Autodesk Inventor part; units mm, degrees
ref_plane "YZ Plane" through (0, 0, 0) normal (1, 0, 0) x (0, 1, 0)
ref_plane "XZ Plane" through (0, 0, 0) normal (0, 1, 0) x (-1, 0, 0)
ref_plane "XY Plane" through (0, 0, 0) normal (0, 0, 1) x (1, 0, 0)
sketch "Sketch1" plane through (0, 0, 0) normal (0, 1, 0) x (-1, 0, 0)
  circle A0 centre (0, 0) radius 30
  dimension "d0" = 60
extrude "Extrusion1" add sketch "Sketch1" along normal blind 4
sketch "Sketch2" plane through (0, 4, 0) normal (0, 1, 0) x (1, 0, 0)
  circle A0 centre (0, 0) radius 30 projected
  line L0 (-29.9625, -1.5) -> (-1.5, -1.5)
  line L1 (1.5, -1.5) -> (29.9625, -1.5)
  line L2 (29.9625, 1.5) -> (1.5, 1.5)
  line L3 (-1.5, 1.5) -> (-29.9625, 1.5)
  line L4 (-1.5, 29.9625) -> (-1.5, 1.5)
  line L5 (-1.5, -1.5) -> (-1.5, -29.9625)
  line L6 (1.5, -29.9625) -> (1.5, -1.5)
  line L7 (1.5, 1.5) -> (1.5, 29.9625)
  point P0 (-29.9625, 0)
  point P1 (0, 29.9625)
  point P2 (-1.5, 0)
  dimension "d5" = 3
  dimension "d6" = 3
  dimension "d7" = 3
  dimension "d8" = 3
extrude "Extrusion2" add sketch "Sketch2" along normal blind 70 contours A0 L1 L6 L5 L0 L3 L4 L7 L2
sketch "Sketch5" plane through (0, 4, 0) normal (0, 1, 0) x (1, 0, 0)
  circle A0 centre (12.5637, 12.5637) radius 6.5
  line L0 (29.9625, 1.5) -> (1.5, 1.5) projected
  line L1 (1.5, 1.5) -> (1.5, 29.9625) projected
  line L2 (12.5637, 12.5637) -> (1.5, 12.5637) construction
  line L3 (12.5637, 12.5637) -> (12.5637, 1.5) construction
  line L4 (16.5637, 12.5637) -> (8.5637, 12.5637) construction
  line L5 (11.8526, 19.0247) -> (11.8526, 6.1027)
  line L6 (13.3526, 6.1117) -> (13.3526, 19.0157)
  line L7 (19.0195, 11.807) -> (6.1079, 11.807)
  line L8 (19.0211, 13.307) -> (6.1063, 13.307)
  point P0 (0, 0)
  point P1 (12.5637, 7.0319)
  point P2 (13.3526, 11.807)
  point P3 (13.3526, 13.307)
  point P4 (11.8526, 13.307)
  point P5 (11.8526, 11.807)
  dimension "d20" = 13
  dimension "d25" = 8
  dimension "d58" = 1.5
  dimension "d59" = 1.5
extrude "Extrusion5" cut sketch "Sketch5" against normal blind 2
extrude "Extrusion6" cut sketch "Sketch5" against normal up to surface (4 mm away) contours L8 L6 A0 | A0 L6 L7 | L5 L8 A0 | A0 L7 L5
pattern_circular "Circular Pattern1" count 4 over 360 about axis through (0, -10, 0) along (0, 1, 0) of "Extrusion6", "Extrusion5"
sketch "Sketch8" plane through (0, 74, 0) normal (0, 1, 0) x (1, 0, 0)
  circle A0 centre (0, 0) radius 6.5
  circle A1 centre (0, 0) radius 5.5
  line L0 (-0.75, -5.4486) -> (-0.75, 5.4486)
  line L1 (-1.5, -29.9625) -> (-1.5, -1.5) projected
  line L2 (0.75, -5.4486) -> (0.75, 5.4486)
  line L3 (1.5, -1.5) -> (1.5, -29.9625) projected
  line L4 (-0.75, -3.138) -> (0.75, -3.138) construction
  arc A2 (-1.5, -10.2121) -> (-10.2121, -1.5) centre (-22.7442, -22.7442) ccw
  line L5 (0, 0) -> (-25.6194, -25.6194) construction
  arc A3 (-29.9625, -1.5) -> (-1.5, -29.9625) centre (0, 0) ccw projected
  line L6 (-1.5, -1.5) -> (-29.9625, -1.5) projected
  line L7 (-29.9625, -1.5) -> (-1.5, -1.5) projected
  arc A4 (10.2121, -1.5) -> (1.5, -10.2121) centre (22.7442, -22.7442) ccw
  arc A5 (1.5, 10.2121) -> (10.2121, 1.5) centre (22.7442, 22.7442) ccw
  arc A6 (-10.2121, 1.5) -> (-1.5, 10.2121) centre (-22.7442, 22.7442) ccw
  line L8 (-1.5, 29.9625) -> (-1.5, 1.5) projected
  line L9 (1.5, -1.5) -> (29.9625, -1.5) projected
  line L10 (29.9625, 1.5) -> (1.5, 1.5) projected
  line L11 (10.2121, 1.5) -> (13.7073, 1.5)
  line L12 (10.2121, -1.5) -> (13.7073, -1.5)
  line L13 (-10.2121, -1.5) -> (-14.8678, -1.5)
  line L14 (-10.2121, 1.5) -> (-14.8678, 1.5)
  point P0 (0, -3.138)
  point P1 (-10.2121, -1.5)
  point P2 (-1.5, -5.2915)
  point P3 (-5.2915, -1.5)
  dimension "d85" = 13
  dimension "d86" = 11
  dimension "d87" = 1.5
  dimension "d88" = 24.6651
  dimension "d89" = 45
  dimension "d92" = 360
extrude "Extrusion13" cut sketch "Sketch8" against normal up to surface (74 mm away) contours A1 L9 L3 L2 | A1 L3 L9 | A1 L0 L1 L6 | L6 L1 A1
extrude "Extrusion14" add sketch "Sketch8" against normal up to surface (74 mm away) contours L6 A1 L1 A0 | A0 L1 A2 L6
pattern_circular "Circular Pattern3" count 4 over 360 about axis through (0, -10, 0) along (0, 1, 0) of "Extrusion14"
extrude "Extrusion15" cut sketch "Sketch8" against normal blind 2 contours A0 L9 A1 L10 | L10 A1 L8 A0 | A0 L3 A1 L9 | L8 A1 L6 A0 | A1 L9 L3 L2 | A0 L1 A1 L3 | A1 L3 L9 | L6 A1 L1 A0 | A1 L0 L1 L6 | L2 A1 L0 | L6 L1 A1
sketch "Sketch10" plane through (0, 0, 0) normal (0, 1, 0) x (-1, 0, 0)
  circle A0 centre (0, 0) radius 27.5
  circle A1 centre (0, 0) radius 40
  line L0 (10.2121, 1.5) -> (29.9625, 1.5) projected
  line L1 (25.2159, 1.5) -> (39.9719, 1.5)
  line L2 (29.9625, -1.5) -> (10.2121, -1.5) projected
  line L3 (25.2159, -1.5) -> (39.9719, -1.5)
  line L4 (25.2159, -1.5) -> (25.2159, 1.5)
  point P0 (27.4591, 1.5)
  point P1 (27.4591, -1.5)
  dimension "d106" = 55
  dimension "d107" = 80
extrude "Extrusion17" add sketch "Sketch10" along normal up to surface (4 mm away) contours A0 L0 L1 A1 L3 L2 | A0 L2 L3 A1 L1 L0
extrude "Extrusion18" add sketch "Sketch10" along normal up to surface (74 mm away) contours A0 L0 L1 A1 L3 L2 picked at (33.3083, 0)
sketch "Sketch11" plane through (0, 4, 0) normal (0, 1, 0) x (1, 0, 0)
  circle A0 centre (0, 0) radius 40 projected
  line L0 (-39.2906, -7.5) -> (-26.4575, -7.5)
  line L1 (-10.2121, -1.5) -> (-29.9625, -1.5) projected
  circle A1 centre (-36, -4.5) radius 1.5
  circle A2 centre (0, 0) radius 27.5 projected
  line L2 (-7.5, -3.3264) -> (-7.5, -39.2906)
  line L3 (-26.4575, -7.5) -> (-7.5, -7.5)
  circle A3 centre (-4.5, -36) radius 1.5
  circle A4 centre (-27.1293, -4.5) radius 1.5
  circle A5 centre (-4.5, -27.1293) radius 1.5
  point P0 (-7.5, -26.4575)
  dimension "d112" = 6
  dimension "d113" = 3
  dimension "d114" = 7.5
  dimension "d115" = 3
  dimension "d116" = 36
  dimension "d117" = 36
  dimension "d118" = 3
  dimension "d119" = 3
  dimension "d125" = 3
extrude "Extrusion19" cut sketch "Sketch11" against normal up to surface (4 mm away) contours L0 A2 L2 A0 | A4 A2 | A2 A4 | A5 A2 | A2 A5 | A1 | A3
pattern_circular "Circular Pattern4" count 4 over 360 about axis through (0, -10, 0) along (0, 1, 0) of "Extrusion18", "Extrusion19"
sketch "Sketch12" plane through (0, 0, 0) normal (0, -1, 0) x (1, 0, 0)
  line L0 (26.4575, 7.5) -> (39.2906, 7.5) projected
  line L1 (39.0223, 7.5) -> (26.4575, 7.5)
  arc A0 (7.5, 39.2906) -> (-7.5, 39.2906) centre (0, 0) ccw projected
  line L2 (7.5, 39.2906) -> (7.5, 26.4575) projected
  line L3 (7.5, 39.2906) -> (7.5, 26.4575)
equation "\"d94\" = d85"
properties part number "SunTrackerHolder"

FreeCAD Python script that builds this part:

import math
import FreeCAD as App
import Part
import Sketcher
from FreeCAD import Vector

doc = App.newDocument("Part")
body = doc.addObject("PartDesign::Body", "Body")

sketch1 = body.newObject("Sketcher::SketchObject", "Sketch")
sketch1.AttachmentSupport = (doc.getObject("XZ_Plane"), [""])
sketch1.MapMode = "FlatFace"
sketch1.addGeometry(Part.Circle(Vector(0, 0, 0), Vector(0, 0, 1), 30), False)
sketch1.addConstraint([
    Sketcher.Constraint("Coincident", 0, 3, -1, 1),
    Sketcher.Constraint("Diameter", 0, 60.0),
])
pad1 = body.newObject("PartDesign::Pad", "Pad")
pad1.Profile = sketch1
pad1.Length = 4
pad1.Reversed = True

sketch2 = body.newObject("Sketcher::SketchObject", "Sketch001")
sketch2.AttachmentSupport = (doc.getObject("XZ_Plane"), [""])
sketch2.MapMode = "FlatFace"
sketch2.AttachmentOffset = App.Placement(Vector(0, 0, -4), App.Rotation())
sketch2.addGeometry([
    Part.ArcOfCircle(Part.Circle(Vector(0, 0, 0), Vector(0, 0, 1), 30), math.radians(-2.865982), math.radians(2.865982)),
    Part.LineSegment(Vector(29.9625, -1.5, 0), Vector(1.5, -1.5, 0)),
    Part.LineSegment(Vector(1.5, -1.5, 0), Vector(1.5, -29.9625, 0)),
    Part.ArcOfCircle(Part.Circle(Vector(0, 0, 0), Vector(0, 0, 1), 30), math.radians(-92.865982), math.radians(-87.134018)),
    Part.LineSegment(Vector(-1.5, -29.9625, 0), Vector(-1.5, -1.5, 0)),
    Part.LineSegment(Vector(-1.5, -1.5, 0), Vector(-29.9625, -1.5, 0)),
    Part.ArcOfCircle(Part.Circle(Vector(0, 0, 0), Vector(0, 0, 1), 30), math.radians(177.134018), math.radians(182.865982)),
    Part.LineSegment(Vector(-29.9625, 1.5, 0), Vector(-1.5, 1.5, 0)),
    Part.LineSegment(Vector(-1.5, 1.5, 0), Vector(-1.5, 29.9625, 0)),
    Part.ArcOfCircle(Part.Circle(Vector(0, 0, 0), Vector(0, 0, 1), 30), math.radians(87.134018), math.radians(92.865982)),
    Part.LineSegment(Vector(1.5, 29.9625, 0), Vector(1.5, 1.5, 0)),
    Part.LineSegment(Vector(1.5, 1.5, 0), Vector(29.9625, 1.5, 0)),
], False)
sketch2.addConstraint([
    Sketcher.Constraint("Coincident", 0, 1, 1, 1),
    Sketcher.Constraint("Coincident", 1, 2, 2, 1),
    Sketcher.Constraint("Coincident", 2, 2, 3, 2),
    Sketcher.Constraint("Coincident", 3, 1, 4, 1),
    Sketcher.Constraint("Coincident", 4, 2, 5, 1),
    Sketcher.Constraint("Coincident", 5, 2, 6, 2),
    Sketcher.Constraint("Coincident", 6, 1, 7, 1),
    Sketcher.Constraint("Coincident", 7, 2, 8, 1),
    Sketcher.Constraint("Coincident", 8, 2, 9, 2),
    Sketcher.Constraint("Coincident", 9, 1, 10, 1),
    Sketcher.Constraint("Coincident", 10, 2, 11, 1),
    Sketcher.Constraint("Coincident", 11, 2, 0, 2),
    Sketcher.Constraint("Horizontal", 1),
    Sketcher.Constraint("Vertical", 2),
    Sketcher.Constraint("Vertical", 4),
    Sketcher.Constraint("Horizontal", 5),
    Sketcher.Constraint("Horizontal", 7),
    Sketcher.Constraint("Vertical", 8),
    Sketcher.Constraint("Vertical", 10),
    Sketcher.Constraint("Horizontal", 11),
    Sketcher.Constraint("Coincident", 0, 3, -1, 1),
    Sketcher.Constraint("Coincident", 3, 3, -1, 1),
    Sketcher.Constraint("Coincident", 6, 3, -1, 1),
    Sketcher.Constraint("Coincident", 9, 3, -1, 1),
    Sketcher.Constraint("Equal", 0, 3),
    Sketcher.Constraint("Equal", 3, 6),
    Sketcher.Constraint("Equal", 6, 9),
    Sketcher.Constraint("Symmetric", 1, 2, 7, 2, -1, 1),
    Sketcher.Constraint("Symmetric", 4, 2, 10, 2, -1, 1),
    Sketcher.Constraint("Symmetric", 1, 2, 4, 2, -2),
    Sketcher.Constraint("Equal", 11, 2),
    Sketcher.Constraint("Radius", 0, 30.0),
    Sketcher.Constraint("DistanceX", 3, 1, 2, 2, 3.0),
])
pad2 = body.newObject("PartDesign::Pad", "Pad001")
pad2.Profile = sketch2
pad2.Length = 70
pad2.Reversed = True

sketch3 = body.newObject("Sketcher::SketchObject", "Sketch002")
sketch3.AttachmentSupport = (doc.getObject("XZ_Plane"), [""])
sketch3.MapMode = "FlatFace"
sketch3.AttachmentOffset = App.Placement(Vector(0, 0, -4), App.Rotation())
sketch3.addGeometry(Part.Circle(Vector(12.5637, -12.5637, 0), Vector(0, 0, 1), 6.5), False)
sketch3.addConstraint([
    Sketcher.Constraint("Diameter", 0, 13.0),
    Sketcher.Constraint("DistanceX", -1, 1, 0, 3, 12.5637),
    Sketcher.Constraint("DistanceY", 0, 3, -1, 1, 12.5637),
])
pocket1 = body.newObject("PartDesign::Pocket", "Pocket")
pocket1.Profile = sketch3
pocket1.Length = 2
pocket1.Reversed = True

sketch4 = body.newObject("Sketcher::SketchObject", "Sketch003")
sketch4.AttachmentSupport = (doc.getObject("XZ_Plane"), [""])
sketch4.MapMode = "FlatFace"
sketch4.AttachmentOffset = App.Placement(Vector(0, 0, -4), App.Rotation())
sketch4.addGeometry([
    Part.LineSegment(Vector(13.3526, -13.307, 0), Vector(19.0211, -13.307, 0)),
    Part.ArcOfCircle(Part.Circle(Vector(12.5637, -12.5637, 0), Vector(0, 0, 1), 6.5), math.radians(-83.028924), math.radians(-6.566318)),
    Part.LineSegment(Vector(13.3526, -19.0157, 0), Vector(13.3526, -13.307, 0)),
    Part.ArcOfCircle(Part.Circle(Vector(12.5637, -12.5637, 0), Vector(0, 0, 1), 6.5), math.radians(6.685273), math.radians(83.028924)),
    Part.LineSegment(Vector(19.0195, -11.807, 0), Vector(13.3526, -11.807, 0)),
    Part.LineSegment(Vector(13.3526, -11.807, 0), Vector(13.3526, -6.1117, 0)),
    Part.LineSegment(Vector(11.8526, -13.307, 0), Vector(11.8526, -19.0247, 0)),
    Part.ArcOfCircle(Part.Circle(Vector(12.5637, -12.5637, 0), Vector(0, 0, 1), 6.5), math.radians(-173.433682), math.radians(-96.280716)),
    Part.LineSegment(Vector(6.1063, -13.307, 0), Vector(11.8526, -13.307, 0)),
    Part.ArcOfCircle(Part.Circle(Vector(12.5637, -12.5637, 0), Vector(0, 0, 1), 6.5), math.radians(96.280716), math.radians(173.314727)),
    Part.LineSegment(Vector(11.8526, -6.1027, 0), Vector(11.8526, -11.807, 0)),
    Part.LineSegment(Vector(11.8526, -11.807, 0), Vector(6.1079, -11.807, 0)),
], False)
sketch4.addConstraint([
    Sketcher.Constraint("Coincident", 0, 2, 1, 2),
    Sketcher.Constraint("Coincident", 1, 1, 2, 1),
    Sketcher.Constraint("Coincident", 2, 2, 0, 1),
    Sketcher.Constraint("Coincident", 3, 1, 4, 1),
    Sketcher.Constraint("Coincident", 4, 2, 5, 1),
    Sketcher.Constraint("Coincident", 5, 2, 3, 2),
    Sketcher.Constraint("Coincident", 6, 2, 7, 2),
    Sketcher.Constraint("Coincident", 7, 1, 8, 1),
    Sketcher.Constraint("Coincident", 8, 2, 6, 1),
    Sketcher.Constraint("Coincident", 9, 1, 10, 1),
    Sketcher.Constraint("Coincident", 10, 2, 11, 1),
    Sketcher.Constraint("Coincident", 11, 2, 9, 2),
    Sketcher.Constraint("Horizontal", 0),
    Sketcher.Constraint("Vertical", 2),
    Sketcher.Constraint("Horizontal", 4),
    Sketcher.Constraint("Vertical", 5),
    Sketcher.Constraint("Vertical", 6),
    Sketcher.Constraint("Horizontal", 8),
    Sketcher.Constraint("Vertical", 10),
    Sketcher.Constraint("Horizontal", 11),
    Sketcher.Constraint("Coincident", 3, 3, 1, 3),
    Sketcher.Constraint("Coincident", 7, 3, 1, 3),
    Sketcher.Constraint("Coincident", 9, 3, 1, 3),
    Sketcher.Constraint("Equal", 1, 3),
    Sketcher.Constraint("Equal", 3, 7),
    Sketcher.Constraint("Equal", 7, 9),
    Sketcher.Constraint("Horizontal", 2, 2, 7, 1),
    Sketcher.Constraint("Horizontal", 4, 2, 10, 2),
    Sketcher.Constraint("Vertical", 2, 2, 4, 2),
    Sketcher.Constraint("Vertical", 8, 2, 9, 1),
    Sketcher.Constraint("Radius", 1, 6.5),
    Sketcher.Constraint("DistanceY", 0, 2, 3, 1, 1.5),
    Sketcher.Constraint("DistanceX", 6, 2, 1, 1, 1.5),
    Sketcher.Constraint("DistanceX", 4, 2, 4, 1, 5.667),
    Sketcher.Constraint("DistanceX", 0, 1, 0, 2, 5.6685),
    Sketcher.Constraint("DistanceX", -1, 1, 0, 2, 19.021),
    Sketcher.Constraint("DistanceY", 0, 2, -1, 1, 13.307),
])
pocket2 = body.newObject("PartDesign::Pocket", "Pocket001")
pocket2.Profile = sketch4
pocket2.Length = 4
pocket2.Reversed = True
doc.recompute()

polarpattern = body.newObject("PartDesign::PolarPattern", "PolarPattern")
polarpattern.Originals = [pocket2, pocket1]
polarpattern.Axis = (doc.getObject("Y_Axis"), [""])
polarpattern.Angle = 360
polarpattern.Occurrences = 4
body.Tip = polarpattern

sketch5 = body.newObject("Sketcher::SketchObject", "Sketch004")
sketch5.AttachmentSupport = (doc.getObject("XZ_Plane"), [""])
sketch5.MapMode = "FlatFace"
sketch5.AttachmentOffset = App.Placement(Vector(0, 0, -74), App.Rotation())
sketch5.addGeometry([
    Part.LineSegment(Vector(0.75, -5.4486, 0), Vector(0.75, 5.4486, 0)),
    Part.ArcOfCircle(Part.Circle(Vector(0, 0, 0), Vector(0, 0, 1), 5.5), math.radians(-82.162487), math.radians(82.162487)),
    Part.ArcOfCircle(Part.Circle(Vector(0, 0, 0), Vector(0, 0, 1), 5.5), math.radians(97.837513), math.radians(262.162487)),
    Part.LineSegment(Vector(-0.75, -5.4486, 0), Vector(-0.75, 5.4486, 0)),
], False)
sketch5.addConstraint([
    Sketcher.Constraint("Coincident", 0, 1, 1, 1),
    Sketcher.Constraint("Coincident", 1, 2, 0, 2),
    Sketcher.Constraint("Coincident", 2, 1, 3, 2),
    Sketcher.Constraint("Coincident", 3, 1, 2, 2),
    Sketcher.Constraint("Vertical", 0),
    Sketcher.Constraint("Vertical", 3),
    Sketcher.Constraint("Coincident", 1, 3, -1, 1),
    Sketcher.Constraint("Coincident", 2, 3, -1, 1),
    Sketcher.Constraint("Equal", 1, 2),
    Sketcher.Constraint("Horizontal", 1, 2, 2, 1),
    Sketcher.Constraint("Radius", 1, 5.5),
    Sketcher.Constraint("DistanceX", 2, 1, 1, 2, 1.5),
])
pocket3 = body.newObject("PartDesign::Pocket", "Pocket002")
pocket3.Profile = sketch5
pocket3.Length = 74
pocket3.Reversed = True

sketch6 = body.newObject("Sketcher::SketchObject", "Sketch005")
sketch6.AttachmentSupport = (doc.getObject("XZ_Plane"), [""])
sketch6.MapMode = "FlatFace"
sketch6.AttachmentOffset = App.Placement(Vector(0, 0, -74), App.Rotation())
sketch6.addGeometry([
    Part.LineSegment(Vector(-5.291503, 1.5, 0), Vector(-10.2121, 1.5, 0)),
    Part.ArcOfCircle(Part.Circle(Vector(-22.7442, 22.7442, 0), Vector(0, 0, 1), 24.665149), math.radians(-59.463352), math.radians(-30.536648)),
    Part.LineSegment(Vector(-1.5, 10.2121, 0), Vector(-1.5, 5.291503, 0)),
    Part.ArcOfCircle(Part.Circle(Vector(0, 0, 0), Vector(0, 0, 1), 5.5), math.radians(105.82662), math.radians(164.17338)),
], False)
sketch6.addConstraint([
    Sketcher.Constraint("Coincident", 0, 2, 1, 1),
    Sketcher.Constraint("Coincident", 1, 2, 2, 1),
    Sketcher.Constraint("Coincident", 2, 2, 3, 1),
    Sketcher.Constraint("Coincident", 3, 2, 0, 1),
    Sketcher.Constraint("Horizontal", 0),
    Sketcher.Constraint("Vertical", 2),
    Sketcher.Constraint("Coincident", 3, 3, -1, 1),
    Sketcher.Constraint("Equal", 0, 2),
    Sketcher.Constraint("Radius", 3, 5.5),
    Sketcher.Constraint("DistanceY", -1, 1, 0, 2, 1.5),
    Sketcher.Constraint("DistanceX", 1, 2, -1, 1, 1.5),
    Sketcher.Constraint("Radius", 1, 24.6651),
    Sketcher.Constraint("DistanceX", 0, 2, 0, 1, 4.9206),
])
pad3 = body.newObject("PartDesign::Pad", "Pad002")
pad3.Profile = sketch6
pad3.Length = 74
doc.recompute()

polarpattern2 = body.newObject("PartDesign::PolarPattern", "PolarPattern001")
polarpattern2.Originals = [pad3]
polarpattern2.Axis = (doc.getObject("Y_Axis"), [""])
polarpattern2.Angle = 360
polarpattern2.Occurrences = 4
body.Tip = polarpattern2

sketch7 = body.newObject("Sketcher::SketchObject", "Sketch006")
sketch7.AttachmentSupport = (doc.getObject("XZ_Plane"), [""])
sketch7.MapMode = "FlatFace"
sketch7.AttachmentOffset = App.Placement(Vector(0, 0, -74), App.Rotation())
sketch7.addGeometry(Part.Circle(Vector(0, 0, 0), Vector(0, 0, 1), 6.5), False)
sketch7.addConstraint([
    Sketcher.Constraint("Coincident", 0, 3, -1, 1),
    Sketcher.Constraint("Diameter", 0, 13.0),
])
pocket4 = body.newObject("PartDesign::Pocket", "Pocket003")
pocket4.Profile = sketch7
pocket4.Length = 2
pocket4.Reversed = True

sketch8 = body.newObject("Sketcher::SketchObject", "Sketch007")
sketch8.AttachmentSupport = (doc.getObject("XZ_Plane"), [""])
sketch8.MapMode = "FlatFace"
sketch8.addGeometry([
    Part.Circle(Vector(0, 0, 0), Vector(0, 0, 1), 40),
    Part.Circle(Vector(0, 0, 0), Vector(0, 0, 1), 27.5),
], False)
sketch8.addConstraint([
    Sketcher.Constraint("Coincident", 0, 3, -1, 1),
    Sketcher.Constraint("Coincident", 1, 3, -1, 1),
    Sketcher.Constraint("Diameter", 0, 80.0),
    Sketcher.Constraint("Diameter", 1, 55.0),
])
pad4 = body.newObject("PartDesign::Pad", "Pad003")
pad4.Profile = sketch8
pad4.Length = 4
pad4.Reversed = True

sketch9 = body.newObject("Sketcher::SketchObject", "Sketch008")
sketch9.AttachmentSupport = (doc.getObject("XZ_Plane"), [""])
sketch9.MapMode = "FlatFace"
sketch9.addGeometry([
    Part.ArcOfCircle(Part.Circle(Vector(0, 0, 0), Vector(0, 0, 1), 27.5), math.radians(176.873224), math.radians(183.126776)),
    Part.LineSegment(Vector(-27.45906, -1.5, 0), Vector(-39.9719, -1.5, 0)),
    Part.ArcOfCircle(Part.Circle(Vector(0, 0, 0), Vector(0, 0, 1), 40), math.radians(177.850906), math.radians(182.149094)),
    Part.LineSegment(Vector(-39.9719, 1.5, 0), Vector(-27.45906, 1.5, 0)),
], False)
sketch9.addConstraint([
    Sketcher.Constraint("Coincident", 0, 2, 1, 1),
    Sketcher.Constraint("Coincident", 1, 2, 2, 2),
    Sketcher.Constraint("Coincident", 2, 1, 3, 1),
    Sketcher.Constraint("Coincident", 3, 2, 0, 1),
    Sketcher.Constraint("Horizontal", 1),
    Sketcher.Constraint("Horizontal", 3),
    Sketcher.Constraint("Coincident", 0, 3, -1, 1),
    Sketcher.Constraint("Coincident", 2, 3, -1, 1),
    Sketcher.Constraint("Vertical", 1, 2, 2, 1),
    Sketcher.Constraint("Radius", 2, 40.0),
    Sketcher.Constraint("Radius", 0, 27.5),
    Sketcher.Constraint("DistanceY", 1, 2, 2, 1, 3.0),
])
pad5 = body.newObject("PartDesign::Pad", "Pad004")
pad5.Profile = sketch9
pad5.Length = 74
pad5.Reversed = True

sketch10 = body.newObject("Sketcher::SketchObject", "Sketch009")
sketch10.AttachmentSupport = (doc.getObject("XZ_Plane"), [""])
sketch10.MapMode = "FlatFace"
sketch10.AttachmentOffset = App.Placement(Vector(0, 0, -4), App.Rotation())
sketch10.addGeometry([
    Part.LineSegment(Vector(-26.4575, 7.5, 0), Vector(-39.2906, 7.5, 0)),
    Part.ArcOfCircle(Part.Circle(Vector(0, 0, 0), Vector(0, 0, 1), 40), math.radians(100.806919), math.radians(169.193081)),
    Part.LineSegment(Vector(-7.5, 39.2906, 0), Vector(-7.5, 26.457513, 0)),
    Part.ArcOfCircle(Part.Circle(Vector(0, 0, 0), Vector(0, 0, 1), 27.5), math.radians(105.82662), math.radians(164.173372)),
    Part.Circle(Vector(-27.1293, 4.5, 0), Vector(0, 0, 1), 1.5),
    Part.Circle(Vector(-4.5, 27.1293, 0), Vector(0, 0, 1), 1.5),
    Part.Circle(Vector(-36, 4.5, 0), Vector(0, 0, 1), 1.5),
    Part.Circle(Vector(-4.5, 36, 0), Vector(0, 0, 1), 1.5),
], False)
sketch10.addConstraint([
    Sketcher.Constraint("Coincident", 0, 2, 1, 2),
    Sketcher.Constraint("Coincident", 1, 1, 2, 1),
    Sketcher.Constraint("Coincident", 2, 2, 3, 1),
    Sketcher.Constraint("Coincident", 3, 2, 0, 1),
    Sketcher.Constraint("Horizontal", 0),
    Sketcher.Constraint("Vertical", 2),
    Sketcher.Constraint("Coincident", 1, 3, -1, 1),
    Sketcher.Constraint("Coincident", 3, 3, -1, 1),
    Sketcher.Constraint("Equal", 4, 5),
    Sketcher.Constraint("Equal", 5, 6),
    Sketcher.Constraint("Equal", 6, 7),
    Sketcher.Constraint("Horizontal", 4, 3, 6, 3),
    Sketcher.Constraint("Vertical", 5, 3, 7, 3),
    Sketcher.Constraint("Equal", 0, 2),
    Sketcher.Constraint("Diameter", 4, 3.0),
    Sketcher.Constraint("DistanceX", 6, 3, -1, 1, 36.0),
    Sketcher.Constraint("DistanceY", -1, 1, 7, 3, 36.0),
    Sketcher.Constraint("Radius", 1, 40.0),
    Sketcher.Constraint("DistanceY", 6, 3, 0, 2, 3.0),
    Sketcher.Constraint("DistanceX", 1, 1, 7, 3, 3.0),
    Sketcher.Constraint("DistanceY", -1, 1, 0, 2, 7.5),
    Sketcher.Constraint("Radius", 3, 27.5),
    Sketcher.Constraint("DistanceX", 4, 3, -1, 1, 27.1293),
    Sketcher.Constraint("DistanceY", -1, 1, 5, 3, 27.1293),
])
pocket5 = body.newObject("PartDesign::Pocket", "Pocket004")
pocket5.Profile = sketch10
pocket5.Length = 4
pocket5.Reversed = True
doc.recompute()

polarpattern3 = body.newObject("PartDesign::PolarPattern", "PolarPattern002")
polarpattern3.Originals = [pad5, pocket5]
polarpattern3.Axis = (doc.getObject("Y_Axis"), [""])
polarpattern3.Angle = 360
polarpattern3.Occurrences = 4
body.Tip = polarpattern3

doc.recompute()
